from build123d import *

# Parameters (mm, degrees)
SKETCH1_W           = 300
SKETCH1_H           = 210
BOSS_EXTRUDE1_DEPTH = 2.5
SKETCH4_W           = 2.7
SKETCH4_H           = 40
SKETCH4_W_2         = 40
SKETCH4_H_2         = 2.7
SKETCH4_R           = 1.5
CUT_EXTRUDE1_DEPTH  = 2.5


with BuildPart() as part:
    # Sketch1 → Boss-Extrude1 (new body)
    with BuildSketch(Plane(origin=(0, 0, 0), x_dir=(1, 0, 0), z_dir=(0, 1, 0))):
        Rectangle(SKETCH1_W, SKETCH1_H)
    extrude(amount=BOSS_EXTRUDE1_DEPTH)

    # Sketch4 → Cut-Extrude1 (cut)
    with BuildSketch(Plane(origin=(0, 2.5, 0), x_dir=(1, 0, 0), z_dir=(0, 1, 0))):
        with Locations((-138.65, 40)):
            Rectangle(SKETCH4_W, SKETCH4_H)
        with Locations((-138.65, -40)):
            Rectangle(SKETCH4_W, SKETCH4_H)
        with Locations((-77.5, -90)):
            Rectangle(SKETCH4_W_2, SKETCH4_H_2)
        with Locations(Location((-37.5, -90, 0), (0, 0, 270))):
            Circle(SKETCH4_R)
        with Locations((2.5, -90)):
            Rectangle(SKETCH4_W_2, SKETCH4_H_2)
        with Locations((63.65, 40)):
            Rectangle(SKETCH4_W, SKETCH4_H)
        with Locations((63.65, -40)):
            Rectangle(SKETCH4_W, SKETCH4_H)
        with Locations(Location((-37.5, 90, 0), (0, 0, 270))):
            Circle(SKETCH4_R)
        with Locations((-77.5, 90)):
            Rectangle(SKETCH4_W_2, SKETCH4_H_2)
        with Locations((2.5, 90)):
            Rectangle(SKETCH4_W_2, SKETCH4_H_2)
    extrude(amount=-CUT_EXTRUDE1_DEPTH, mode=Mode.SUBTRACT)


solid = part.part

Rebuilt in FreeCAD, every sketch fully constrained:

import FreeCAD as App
import Part
import Sketcher

V = App.Vector

doc = App.newDocument("Part")
params = doc.addObject("Spreadsheet::Sheet", "Params")
for row, (alias, value) in enumerate([
    ("sketch1_width", "300 mm"),
    ("sketch1_height", "210 mm"),
    ("pad1_length", "2.5 mm"),
    ("sketch2_diameter", "3 mm"),
    ("sketch2_width", "40 mm"),
    ("sketch2_width2", "2.7 mm"),
    ("pocket1_length", "2.5 mm"),
], start=1):
    params.set(f"A{row}", alias)
    params.set(f"B{row}", "=" + value)
    params.setAlias(f"B{row}", alias)

body = doc.addObject("PartDesign::Body", "Body")

# Sketch on XZ plane
sketch1 = doc.addObject("Sketcher::SketchObject", "Sketch")
body.addObject(sketch1)
sketch1.AttachmentSupport = (doc.XZ_Plane, [""])
sketch1.MapMode = "FlatFace"
sketch1.addGeometry([
    Part.LineSegment(V(-150, -105, 0), V(-150, 105, 0)),
    Part.LineSegment(V(-150, 105, 0), V(150, 105, 0)),
    Part.LineSegment(V(150, 105, 0), V(150, -105, 0)),
    Part.LineSegment(V(150, -105, 0), V(-150, -105, 0)),
], False)
sketch1.addConstraint([
    Sketcher.Constraint("Coincident", 0, 2, 1, 1),
    Sketcher.Constraint("Coincident", 1, 2, 2, 1),
    Sketcher.Constraint("Coincident", 2, 2, 3, 1),
    Sketcher.Constraint("Coincident", 3, 2, 0, 1),
    Sketcher.Constraint("Vertical", 0),
    Sketcher.Constraint("Horizontal", 1),
    Sketcher.Constraint("Vertical", 2),
    Sketcher.Constraint("Horizontal", 3),
    Sketcher.Constraint("Symmetric", 0, 2, 2, 2, -1, 1),
    Sketcher.Constraint("DistanceX", 1, 1, 1, 2, 300.0),
    Sketcher.Constraint("DistanceY", 0, 1, 0, 2, 210.0),
])
sketch1.setExpression("Constraints[9]", "Params.sketch1_width")
sketch1.setExpression("Constraints[10]", "Params.sketch1_height")
pad1 = doc.addObject("PartDesign::Pad", "Pad")
body.addObject(pad1)
pad1.Profile = sketch1
pad1.setExpression("Length", "Params.pad1_length")
pad1.Reversed = True

# Sketch on XZ plane
sketch2 = doc.addObject("Sketcher::SketchObject", "Sketch001")
body.addObject(sketch2)
sketch2.AttachmentSupport = (doc.XZ_Plane, [""])
sketch2.MapMode = "FlatFace"
sketch2.AttachmentOffset = App.Placement(V(0, 0, -2.5), App.Rotation())
sketch2.addGeometry([
    Part.LineSegment(V(-140, -60, 0), V(-140, -20, 0)),  # 0
    Part.LineSegment(V(-140, -20, 0), V(-137.3, -20, 0)),  # 1
    Part.LineSegment(V(-137.3, -20, 0), V(-137.3, -60, 0)),  # 2
    Part.LineSegment(V(-137.3, -60, 0), V(-140, -60, 0)),  # 3
    Part.LineSegment(V(-140, 20, 0), V(-140, 60, 0)),  # 4
    Part.LineSegment(V(-140, 60, 0), V(-137.3, 60, 0)),  # 5
    Part.LineSegment(V(-137.3, 60, 0), V(-137.3, 20, 0)),  # 6
    Part.LineSegment(V(-137.3, 20, 0), V(-140, 20, 0)),  # 7
    Part.LineSegment(V(-97.5, 88.65, 0), V(-97.5, 91.35, 0)),  # 8
    Part.LineSegment(V(-97.5, 91.35, 0), V(-57.5, 91.35, 0)),  # 9
    Part.LineSegment(V(-57.5, 91.35, 0), V(-57.5, 88.65, 0)),  # 10
    Part.LineSegment(V(-57.5, 88.65, 0), V(-97.5, 88.65, 0)),  # 11
    Part.Circle(V(-37.5, 90, 0), V(0, 0, 1), 1.5),  # 12
    Part.LineSegment(V(-17.5, 88.65, 0), V(-17.5, 91.35, 0)),  # 13
    Part.LineSegment(V(-17.5, 91.35, 0), V(22.5, 91.35, 0)),  # 14
    Part.LineSegment(V(22.5, 91.35, 0), V(22.5, 88.65, 0)),  # 15
    Part.LineSegment(V(22.5, 88.65, 0), V(-17.5, 88.65, 0)),  # 16
    Part.LineSegment(V(62.3, -60, 0), V(62.3, -20, 0)),  # 17
    Part.LineSegment(V(62.3, -20, 0), V(65, -20, 0)),  # 18
    Part.LineSegment(V(65, -20, 0), V(65, -60, 0)),  # 19
    Part.LineSegment(V(65, -60, 0), V(62.3, -60, 0)),  # 20
    Part.LineSegment(V(62.3, 20, 0), V(62.3, 60, 0)),  # 21
    Part.LineSegment(V(62.3, 60, 0), V(65, 60, 0)),  # 22
    Part.LineSegment(V(65, 60, 0), V(65, 20, 0)),  # 23
    Part.LineSegment(V(65, 20, 0), V(62.3, 20, 0)),  # 24
    Part.Circle(V(-37.5, -90, 0), V(0, 0, 1), 1.5),  # 25
    Part.LineSegment(V(-97.5, -91.35, 0), V(-97.5, -88.65, 0)),  # 26
    Part.LineSegment(V(-97.5, -88.65, 0), V(-57.5, -88.65, 0)),  # 27
    Part.LineSegment(V(-57.5, -88.65, 0), V(-57.5, -91.35, 0)),  # 28
    Part.LineSegment(V(-57.5, -91.35, 0), V(-97.5, -91.35, 0)),  # 29
    Part.LineSegment(V(-17.5, -91.35, 0), V(-17.5, -88.65, 0)),  # 30
    Part.LineSegment(V(-17.5, -88.65, 0), V(22.5, -88.65, 0)),  # 31
    Part.LineSegment(V(22.5, -88.65, 0), V(22.5, -91.35, 0)),  # 32
    Part.LineSegment(V(22.5, -91.35, 0), V(-17.5, -91.35, 0)),  # 33
], False)
sketch2.addConstraint([
    Sketcher.Constraint("Coincident", 0, 2, 1, 1),
    Sketcher.Constraint("Coincident", 1, 2, 2, 1),
    Sketcher.Constraint("Coincident", 2, 2, 3, 1),
    Sketcher.Constraint("Coincident", 3, 2, 0, 1),
    Sketcher.Constraint("Coincident", 4, 2, 5, 1),
    Sketcher.Constraint("Coincident", 5, 2, 6, 1),
    Sketcher.Constraint("Coincident", 6, 2, 7, 1),
    Sketcher.Constraint("Coincident", 7, 2, 4, 1),
    Sketcher.Constraint("Coincident", 8, 2, 9, 1),
    Sketcher.Constraint("Coincident", 9, 2, 10, 1),
    Sketcher.Constraint("Coincident", 10, 2, 11, 1),
    Sketcher.Constraint("Coincident", 11, 2, 8, 1),
    Sketcher.Constraint("Coincident", 13, 2, 14, 1),
    Sketcher.Constraint("Coincident", 14, 2, 15, 1),
    Sketcher.Constraint("Coincident", 15, 2, 16, 1),
    Sketcher.Constraint("Coincident", 16, 2, 13, 1),
    Sketcher.Constraint("Coincident", 17, 2, 18, 1),
    Sketcher.Constraint("Coincident", 18, 2, 19, 1),
    Sketcher.Constraint("Coincident", 19, 2, 20, 1),
    Sketcher.Constraint("Coincident", 20, 2, 17, 1),
    Sketcher.Constraint("Coincident", 21, 2, 22, 1),
    Sketcher.Constraint("Coincident", 22, 2, 23, 1),
    Sketcher.Constraint("Coincident", 23, 2, 24, 1),
    Sketcher.Constraint("Coincident", 24, 2, 21, 1),
    Sketcher.Constraint("Coincident", 26, 2, 27, 1),
    Sketcher.Constraint("Coincident", 27, 2, 28, 1),
    Sketcher.Constraint("Coincident", 28, 2, 29, 1),
    Sketcher.Constraint("Coincident", 29, 2, 26, 1),
    Sketcher.Constraint("Coincident", 30, 2, 31, 1),
    Sketcher.Constraint("Coincident", 31, 2, 32, 1),
    Sketcher.Constraint("Coincident", 32, 2, 33, 1),
    Sketcher.Constraint("Coincident", 33, 2, 30, 1),
    Sketcher.Constraint("Vertical", 0),
    Sketcher.Constraint("Horizontal", 1),
    Sketcher.Constraint("Vertical", 2),
    Sketcher.Constraint("Horizontal", 3),
    Sketcher.Constraint("Vertical", 4),
    Sketcher.Constraint("Horizontal", 5),
    Sketcher.Constraint("Vertical", 6),
    Sketcher.Constraint("Horizontal", 7),
    Sketcher.Constraint("Vertical", 8),
    Sketcher.Constraint("Horizontal", 9),
    Sketcher.Constraint("Vertical", 10),
    Sketcher.Constraint("Horizontal", 11),
    Sketcher.Constraint("Vertical", 13),
    Sketcher.Constraint("Horizontal", 14),
    Sketcher.Constraint("Vertical", 15),
    Sketcher.Constraint("Horizontal", 16),
    Sketcher.Constraint("Vertical", 17),
    Sketcher.Constraint("Horizontal", 18),
    Sketcher.Constraint("Vertical", 19),
    Sketcher.Constraint("Horizontal", 20),
    Sketcher.Constraint("Vertical", 21),
    Sketcher.Constraint("Horizontal", 22),
    Sketcher.Constraint("Vertical", 23),
    Sketcher.Constraint("Horizontal", 24),
    Sketcher.Constraint("Vertical", 26),
    Sketcher.Constraint("Horizontal", 27),
    Sketcher.Constraint("Vertical", 28),
    Sketcher.Constraint("Horizontal", 29),
    Sketcher.Constraint("Vertical", 30),
    Sketcher.Constraint("Horizontal", 31),
    Sketcher.Constraint("Vertical", 32),
    Sketcher.Constraint("Horizontal", 33),
    Sketcher.Constraint("Equal", 12, 25),
    Sketcher.Constraint("Symmetric", 12, 3, 25, 3, -1),
    Sketcher.Constraint("Symmetric", 3, 2, 4, 2, -1),
    Sketcher.Constraint("Symmetric", 1, 2, 6, 2, -1),
    Sketcher.Constraint("Symmetric", 20, 2, 21, 2, -1),
    Sketcher.Constraint("Symmetric", 18, 2, 23, 2, -1),
    Sketcher.Constraint("Symmetric", 11, 2, 26, 2, -1),
    Sketcher.Constraint("Symmetric", 9, 2, 28, 2, -1),
    Sketcher.Constraint("Symmetric", 16, 2, 30, 2, -1),
    Sketcher.Constraint("Symmetric", 14, 2, 32, 2, -1),
    Sketcher.Constraint("Horizontal", 9, 2, 13, 2),
    Sketcher.Constraint("Horizontal", 11, 2, 15, 2),
    Sketcher.Constraint("Horizontal", 1, 2, 17, 2),
    Sketcher.Constraint("Horizontal", 3, 2, 19, 2),
    Sketcher.Constraint("Equal", 11, 14),
    Sketcher.Constraint("Equal", 7, 18),
    Sketcher.Constraint("Equal", 33, 0),
    Sketcher.Constraint("Equal", 24, 8),
    Sketcher.Constraint("Diameter", 12, 3.0),
    Sketcher.Constraint("DistanceX", 9, 1, 9, 2, 40.0),
    Sketcher.Constraint("DistanceX", 1, 1, 1, 2, 2.7),
    Sketcher.Constraint("DistanceY", -1, 1, 12, 3, 90.0),
    Sketcher.Constraint("DistanceX", 0, 2, -1, 1, 140.0),
    Sketcher.Constraint("DistanceY", 0, 2, -1, 1, 20.0),
    Sketcher.Constraint("DistanceX", -1, 1, 18, 2, 65.0),
    Sketcher.Constraint("DistanceX", 8, 2, 12, 3, 60.0),
    Sketcher.Constraint("DistanceX", 12, 3, 13, 2, 20.0),
    Sketcher.Constraint("DistanceX", 12, 3, -1, 1, 37.5),
    Sketcher.Constraint("DistanceY", -1, 1, 8, 2, 91.35),
])
sketch2.setExpression("Constraints[82]", "Params.sketch2_diameter")
sketch2.setExpression("Constraints[83]", "Params.sketch2_width")
sketch2.setExpression("Constraints[84]", "Params.sketch2_width2")
pocket1 = doc.addObject("PartDesign::Pocket", "Pocket")
body.addObject(pocket1)
pocket1.Profile = sketch2
pocket1.setExpression("Length", "Params.pocket1_length")
pocket1.Reversed = True

doc.recompute()
